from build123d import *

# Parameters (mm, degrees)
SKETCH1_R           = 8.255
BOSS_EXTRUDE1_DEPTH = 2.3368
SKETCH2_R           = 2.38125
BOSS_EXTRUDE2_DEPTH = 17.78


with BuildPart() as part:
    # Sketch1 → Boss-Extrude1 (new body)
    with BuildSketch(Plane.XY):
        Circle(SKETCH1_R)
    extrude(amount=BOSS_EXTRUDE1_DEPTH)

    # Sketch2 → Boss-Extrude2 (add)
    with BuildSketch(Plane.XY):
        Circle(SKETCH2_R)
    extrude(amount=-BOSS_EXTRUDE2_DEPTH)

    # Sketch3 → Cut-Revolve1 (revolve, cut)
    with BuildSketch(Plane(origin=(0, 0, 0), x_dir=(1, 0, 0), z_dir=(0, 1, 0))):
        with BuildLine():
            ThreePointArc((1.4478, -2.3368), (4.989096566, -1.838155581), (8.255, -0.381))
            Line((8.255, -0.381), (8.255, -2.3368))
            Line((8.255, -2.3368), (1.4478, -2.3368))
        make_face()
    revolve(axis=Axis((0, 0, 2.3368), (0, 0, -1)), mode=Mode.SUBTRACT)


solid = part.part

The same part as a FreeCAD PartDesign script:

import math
import FreeCAD as App
import Part
import Sketcher
Q = App.Units.Quantity

doc = App.newDocument("Part")
body = doc.addObject("PartDesign::Body", "Body")

# Sketch on XY plane
sketch1 = body.newObject("Sketcher::SketchObject", "Sketch")
sketch1.AttachmentSupport = (doc.getObject("XY_Plane"), [""])
sketch1.MapMode = "FlatFace"
sketch1.addGeometry(Part.Circle(App.Vector(0, 0, 0), App.Vector(0, 0, 1), 8.255), False)
sketch1.addConstraint(Sketcher.Constraint("Coincident", 0, 3, -1, 1))
sketch1.addConstraint(Sketcher.Constraint("Diameter", 0, Q("0.65 in")))
pad1 = body.newObject("PartDesign::Pad", "Pad")
pad1.Profile = sketch1
pad1.Length = Q("0.092 in")

# Sketch on XY plane
sketch2 = body.newObject("Sketcher::SketchObject", "Sketch001")
sketch2.AttachmentSupport = (doc.getObject("XY_Plane"), [""])
sketch2.MapMode = "FlatFace"
sketch2.addGeometry(Part.Circle(App.Vector(0, 0, 0), App.Vector(0, 0, 1), 2.38125), False)
sketch2.addConstraint(Sketcher.Constraint("Coincident", 0, 3, -1, 1))
sketch2.addConstraint(Sketcher.Constraint("Diameter", 0, Q("0.1875 in")))
pad2 = body.newObject("PartDesign::Pad", "Pad001")
pad2.Profile = sketch2
pad2.Length = Q("0.7 in")
pad2.Reversed = True

# Sketch on XZ plane
sketch3 = body.newObject("Sketcher::SketchObject", "Sketch002")
sketch3.AttachmentSupport = (doc.getObject("XZ_Plane"), [""])
sketch3.MapMode = "FlatFace"
sketch3.addGeometry(Part.ArcOfCircle(Part.Circle(App.Vector(1.4478, -10.487396, 0), App.Vector(0, 0, 1), 12.824196), math.radians(57.939861), math.radians(90)), False)
sketch3.addGeometry(Part.LineSegment(App.Vector(1.4478, 2.3368, 0), App.Vector(8.255, 2.3368, 0)), False)
sketch3.addGeometry(Part.LineSegment(App.Vector(8.255, 2.3368, 0), App.Vector(8.255, 0.381, 0)), False)
sketch3.addConstraint(Sketcher.Constraint("Tangent", 0, 2, 1, 1))
sketch3.addConstraint(Sketcher.Constraint("Coincident", 1, 2, 2, 1))
sketch3.addConstraint(Sketcher.Constraint("Coincident", 2, 2, 0, 1))
sketch3.addConstraint(Sketcher.Constraint("Horizontal", 1))
sketch3.addConstraint(Sketcher.Constraint("Vertical", 2))
sketch3.addConstraint(Sketcher.Constraint("DistanceX", 1, 1, 1, 2, Q("0.268 in")))
sketch3.addConstraint(Sketcher.Constraint("DistanceY", 2, 2, 2, 1, Q("0.077 in")))
sketch3.addConstraint(Sketcher.Constraint("DistanceX", -1, 1, 0, 3, Q("0.057 in")))
sketch3.addConstraint(Sketcher.Constraint("DistanceY", -1, 1, 0, 2, Q("0.092 in")))
groove = body.newObject("PartDesign::Groove", "Groove")
groove.Profile = sketch3
groove.ReferenceAxis = (sketch3, ["V_Axis"])
groove.Angle = 360

doc.recompute()
